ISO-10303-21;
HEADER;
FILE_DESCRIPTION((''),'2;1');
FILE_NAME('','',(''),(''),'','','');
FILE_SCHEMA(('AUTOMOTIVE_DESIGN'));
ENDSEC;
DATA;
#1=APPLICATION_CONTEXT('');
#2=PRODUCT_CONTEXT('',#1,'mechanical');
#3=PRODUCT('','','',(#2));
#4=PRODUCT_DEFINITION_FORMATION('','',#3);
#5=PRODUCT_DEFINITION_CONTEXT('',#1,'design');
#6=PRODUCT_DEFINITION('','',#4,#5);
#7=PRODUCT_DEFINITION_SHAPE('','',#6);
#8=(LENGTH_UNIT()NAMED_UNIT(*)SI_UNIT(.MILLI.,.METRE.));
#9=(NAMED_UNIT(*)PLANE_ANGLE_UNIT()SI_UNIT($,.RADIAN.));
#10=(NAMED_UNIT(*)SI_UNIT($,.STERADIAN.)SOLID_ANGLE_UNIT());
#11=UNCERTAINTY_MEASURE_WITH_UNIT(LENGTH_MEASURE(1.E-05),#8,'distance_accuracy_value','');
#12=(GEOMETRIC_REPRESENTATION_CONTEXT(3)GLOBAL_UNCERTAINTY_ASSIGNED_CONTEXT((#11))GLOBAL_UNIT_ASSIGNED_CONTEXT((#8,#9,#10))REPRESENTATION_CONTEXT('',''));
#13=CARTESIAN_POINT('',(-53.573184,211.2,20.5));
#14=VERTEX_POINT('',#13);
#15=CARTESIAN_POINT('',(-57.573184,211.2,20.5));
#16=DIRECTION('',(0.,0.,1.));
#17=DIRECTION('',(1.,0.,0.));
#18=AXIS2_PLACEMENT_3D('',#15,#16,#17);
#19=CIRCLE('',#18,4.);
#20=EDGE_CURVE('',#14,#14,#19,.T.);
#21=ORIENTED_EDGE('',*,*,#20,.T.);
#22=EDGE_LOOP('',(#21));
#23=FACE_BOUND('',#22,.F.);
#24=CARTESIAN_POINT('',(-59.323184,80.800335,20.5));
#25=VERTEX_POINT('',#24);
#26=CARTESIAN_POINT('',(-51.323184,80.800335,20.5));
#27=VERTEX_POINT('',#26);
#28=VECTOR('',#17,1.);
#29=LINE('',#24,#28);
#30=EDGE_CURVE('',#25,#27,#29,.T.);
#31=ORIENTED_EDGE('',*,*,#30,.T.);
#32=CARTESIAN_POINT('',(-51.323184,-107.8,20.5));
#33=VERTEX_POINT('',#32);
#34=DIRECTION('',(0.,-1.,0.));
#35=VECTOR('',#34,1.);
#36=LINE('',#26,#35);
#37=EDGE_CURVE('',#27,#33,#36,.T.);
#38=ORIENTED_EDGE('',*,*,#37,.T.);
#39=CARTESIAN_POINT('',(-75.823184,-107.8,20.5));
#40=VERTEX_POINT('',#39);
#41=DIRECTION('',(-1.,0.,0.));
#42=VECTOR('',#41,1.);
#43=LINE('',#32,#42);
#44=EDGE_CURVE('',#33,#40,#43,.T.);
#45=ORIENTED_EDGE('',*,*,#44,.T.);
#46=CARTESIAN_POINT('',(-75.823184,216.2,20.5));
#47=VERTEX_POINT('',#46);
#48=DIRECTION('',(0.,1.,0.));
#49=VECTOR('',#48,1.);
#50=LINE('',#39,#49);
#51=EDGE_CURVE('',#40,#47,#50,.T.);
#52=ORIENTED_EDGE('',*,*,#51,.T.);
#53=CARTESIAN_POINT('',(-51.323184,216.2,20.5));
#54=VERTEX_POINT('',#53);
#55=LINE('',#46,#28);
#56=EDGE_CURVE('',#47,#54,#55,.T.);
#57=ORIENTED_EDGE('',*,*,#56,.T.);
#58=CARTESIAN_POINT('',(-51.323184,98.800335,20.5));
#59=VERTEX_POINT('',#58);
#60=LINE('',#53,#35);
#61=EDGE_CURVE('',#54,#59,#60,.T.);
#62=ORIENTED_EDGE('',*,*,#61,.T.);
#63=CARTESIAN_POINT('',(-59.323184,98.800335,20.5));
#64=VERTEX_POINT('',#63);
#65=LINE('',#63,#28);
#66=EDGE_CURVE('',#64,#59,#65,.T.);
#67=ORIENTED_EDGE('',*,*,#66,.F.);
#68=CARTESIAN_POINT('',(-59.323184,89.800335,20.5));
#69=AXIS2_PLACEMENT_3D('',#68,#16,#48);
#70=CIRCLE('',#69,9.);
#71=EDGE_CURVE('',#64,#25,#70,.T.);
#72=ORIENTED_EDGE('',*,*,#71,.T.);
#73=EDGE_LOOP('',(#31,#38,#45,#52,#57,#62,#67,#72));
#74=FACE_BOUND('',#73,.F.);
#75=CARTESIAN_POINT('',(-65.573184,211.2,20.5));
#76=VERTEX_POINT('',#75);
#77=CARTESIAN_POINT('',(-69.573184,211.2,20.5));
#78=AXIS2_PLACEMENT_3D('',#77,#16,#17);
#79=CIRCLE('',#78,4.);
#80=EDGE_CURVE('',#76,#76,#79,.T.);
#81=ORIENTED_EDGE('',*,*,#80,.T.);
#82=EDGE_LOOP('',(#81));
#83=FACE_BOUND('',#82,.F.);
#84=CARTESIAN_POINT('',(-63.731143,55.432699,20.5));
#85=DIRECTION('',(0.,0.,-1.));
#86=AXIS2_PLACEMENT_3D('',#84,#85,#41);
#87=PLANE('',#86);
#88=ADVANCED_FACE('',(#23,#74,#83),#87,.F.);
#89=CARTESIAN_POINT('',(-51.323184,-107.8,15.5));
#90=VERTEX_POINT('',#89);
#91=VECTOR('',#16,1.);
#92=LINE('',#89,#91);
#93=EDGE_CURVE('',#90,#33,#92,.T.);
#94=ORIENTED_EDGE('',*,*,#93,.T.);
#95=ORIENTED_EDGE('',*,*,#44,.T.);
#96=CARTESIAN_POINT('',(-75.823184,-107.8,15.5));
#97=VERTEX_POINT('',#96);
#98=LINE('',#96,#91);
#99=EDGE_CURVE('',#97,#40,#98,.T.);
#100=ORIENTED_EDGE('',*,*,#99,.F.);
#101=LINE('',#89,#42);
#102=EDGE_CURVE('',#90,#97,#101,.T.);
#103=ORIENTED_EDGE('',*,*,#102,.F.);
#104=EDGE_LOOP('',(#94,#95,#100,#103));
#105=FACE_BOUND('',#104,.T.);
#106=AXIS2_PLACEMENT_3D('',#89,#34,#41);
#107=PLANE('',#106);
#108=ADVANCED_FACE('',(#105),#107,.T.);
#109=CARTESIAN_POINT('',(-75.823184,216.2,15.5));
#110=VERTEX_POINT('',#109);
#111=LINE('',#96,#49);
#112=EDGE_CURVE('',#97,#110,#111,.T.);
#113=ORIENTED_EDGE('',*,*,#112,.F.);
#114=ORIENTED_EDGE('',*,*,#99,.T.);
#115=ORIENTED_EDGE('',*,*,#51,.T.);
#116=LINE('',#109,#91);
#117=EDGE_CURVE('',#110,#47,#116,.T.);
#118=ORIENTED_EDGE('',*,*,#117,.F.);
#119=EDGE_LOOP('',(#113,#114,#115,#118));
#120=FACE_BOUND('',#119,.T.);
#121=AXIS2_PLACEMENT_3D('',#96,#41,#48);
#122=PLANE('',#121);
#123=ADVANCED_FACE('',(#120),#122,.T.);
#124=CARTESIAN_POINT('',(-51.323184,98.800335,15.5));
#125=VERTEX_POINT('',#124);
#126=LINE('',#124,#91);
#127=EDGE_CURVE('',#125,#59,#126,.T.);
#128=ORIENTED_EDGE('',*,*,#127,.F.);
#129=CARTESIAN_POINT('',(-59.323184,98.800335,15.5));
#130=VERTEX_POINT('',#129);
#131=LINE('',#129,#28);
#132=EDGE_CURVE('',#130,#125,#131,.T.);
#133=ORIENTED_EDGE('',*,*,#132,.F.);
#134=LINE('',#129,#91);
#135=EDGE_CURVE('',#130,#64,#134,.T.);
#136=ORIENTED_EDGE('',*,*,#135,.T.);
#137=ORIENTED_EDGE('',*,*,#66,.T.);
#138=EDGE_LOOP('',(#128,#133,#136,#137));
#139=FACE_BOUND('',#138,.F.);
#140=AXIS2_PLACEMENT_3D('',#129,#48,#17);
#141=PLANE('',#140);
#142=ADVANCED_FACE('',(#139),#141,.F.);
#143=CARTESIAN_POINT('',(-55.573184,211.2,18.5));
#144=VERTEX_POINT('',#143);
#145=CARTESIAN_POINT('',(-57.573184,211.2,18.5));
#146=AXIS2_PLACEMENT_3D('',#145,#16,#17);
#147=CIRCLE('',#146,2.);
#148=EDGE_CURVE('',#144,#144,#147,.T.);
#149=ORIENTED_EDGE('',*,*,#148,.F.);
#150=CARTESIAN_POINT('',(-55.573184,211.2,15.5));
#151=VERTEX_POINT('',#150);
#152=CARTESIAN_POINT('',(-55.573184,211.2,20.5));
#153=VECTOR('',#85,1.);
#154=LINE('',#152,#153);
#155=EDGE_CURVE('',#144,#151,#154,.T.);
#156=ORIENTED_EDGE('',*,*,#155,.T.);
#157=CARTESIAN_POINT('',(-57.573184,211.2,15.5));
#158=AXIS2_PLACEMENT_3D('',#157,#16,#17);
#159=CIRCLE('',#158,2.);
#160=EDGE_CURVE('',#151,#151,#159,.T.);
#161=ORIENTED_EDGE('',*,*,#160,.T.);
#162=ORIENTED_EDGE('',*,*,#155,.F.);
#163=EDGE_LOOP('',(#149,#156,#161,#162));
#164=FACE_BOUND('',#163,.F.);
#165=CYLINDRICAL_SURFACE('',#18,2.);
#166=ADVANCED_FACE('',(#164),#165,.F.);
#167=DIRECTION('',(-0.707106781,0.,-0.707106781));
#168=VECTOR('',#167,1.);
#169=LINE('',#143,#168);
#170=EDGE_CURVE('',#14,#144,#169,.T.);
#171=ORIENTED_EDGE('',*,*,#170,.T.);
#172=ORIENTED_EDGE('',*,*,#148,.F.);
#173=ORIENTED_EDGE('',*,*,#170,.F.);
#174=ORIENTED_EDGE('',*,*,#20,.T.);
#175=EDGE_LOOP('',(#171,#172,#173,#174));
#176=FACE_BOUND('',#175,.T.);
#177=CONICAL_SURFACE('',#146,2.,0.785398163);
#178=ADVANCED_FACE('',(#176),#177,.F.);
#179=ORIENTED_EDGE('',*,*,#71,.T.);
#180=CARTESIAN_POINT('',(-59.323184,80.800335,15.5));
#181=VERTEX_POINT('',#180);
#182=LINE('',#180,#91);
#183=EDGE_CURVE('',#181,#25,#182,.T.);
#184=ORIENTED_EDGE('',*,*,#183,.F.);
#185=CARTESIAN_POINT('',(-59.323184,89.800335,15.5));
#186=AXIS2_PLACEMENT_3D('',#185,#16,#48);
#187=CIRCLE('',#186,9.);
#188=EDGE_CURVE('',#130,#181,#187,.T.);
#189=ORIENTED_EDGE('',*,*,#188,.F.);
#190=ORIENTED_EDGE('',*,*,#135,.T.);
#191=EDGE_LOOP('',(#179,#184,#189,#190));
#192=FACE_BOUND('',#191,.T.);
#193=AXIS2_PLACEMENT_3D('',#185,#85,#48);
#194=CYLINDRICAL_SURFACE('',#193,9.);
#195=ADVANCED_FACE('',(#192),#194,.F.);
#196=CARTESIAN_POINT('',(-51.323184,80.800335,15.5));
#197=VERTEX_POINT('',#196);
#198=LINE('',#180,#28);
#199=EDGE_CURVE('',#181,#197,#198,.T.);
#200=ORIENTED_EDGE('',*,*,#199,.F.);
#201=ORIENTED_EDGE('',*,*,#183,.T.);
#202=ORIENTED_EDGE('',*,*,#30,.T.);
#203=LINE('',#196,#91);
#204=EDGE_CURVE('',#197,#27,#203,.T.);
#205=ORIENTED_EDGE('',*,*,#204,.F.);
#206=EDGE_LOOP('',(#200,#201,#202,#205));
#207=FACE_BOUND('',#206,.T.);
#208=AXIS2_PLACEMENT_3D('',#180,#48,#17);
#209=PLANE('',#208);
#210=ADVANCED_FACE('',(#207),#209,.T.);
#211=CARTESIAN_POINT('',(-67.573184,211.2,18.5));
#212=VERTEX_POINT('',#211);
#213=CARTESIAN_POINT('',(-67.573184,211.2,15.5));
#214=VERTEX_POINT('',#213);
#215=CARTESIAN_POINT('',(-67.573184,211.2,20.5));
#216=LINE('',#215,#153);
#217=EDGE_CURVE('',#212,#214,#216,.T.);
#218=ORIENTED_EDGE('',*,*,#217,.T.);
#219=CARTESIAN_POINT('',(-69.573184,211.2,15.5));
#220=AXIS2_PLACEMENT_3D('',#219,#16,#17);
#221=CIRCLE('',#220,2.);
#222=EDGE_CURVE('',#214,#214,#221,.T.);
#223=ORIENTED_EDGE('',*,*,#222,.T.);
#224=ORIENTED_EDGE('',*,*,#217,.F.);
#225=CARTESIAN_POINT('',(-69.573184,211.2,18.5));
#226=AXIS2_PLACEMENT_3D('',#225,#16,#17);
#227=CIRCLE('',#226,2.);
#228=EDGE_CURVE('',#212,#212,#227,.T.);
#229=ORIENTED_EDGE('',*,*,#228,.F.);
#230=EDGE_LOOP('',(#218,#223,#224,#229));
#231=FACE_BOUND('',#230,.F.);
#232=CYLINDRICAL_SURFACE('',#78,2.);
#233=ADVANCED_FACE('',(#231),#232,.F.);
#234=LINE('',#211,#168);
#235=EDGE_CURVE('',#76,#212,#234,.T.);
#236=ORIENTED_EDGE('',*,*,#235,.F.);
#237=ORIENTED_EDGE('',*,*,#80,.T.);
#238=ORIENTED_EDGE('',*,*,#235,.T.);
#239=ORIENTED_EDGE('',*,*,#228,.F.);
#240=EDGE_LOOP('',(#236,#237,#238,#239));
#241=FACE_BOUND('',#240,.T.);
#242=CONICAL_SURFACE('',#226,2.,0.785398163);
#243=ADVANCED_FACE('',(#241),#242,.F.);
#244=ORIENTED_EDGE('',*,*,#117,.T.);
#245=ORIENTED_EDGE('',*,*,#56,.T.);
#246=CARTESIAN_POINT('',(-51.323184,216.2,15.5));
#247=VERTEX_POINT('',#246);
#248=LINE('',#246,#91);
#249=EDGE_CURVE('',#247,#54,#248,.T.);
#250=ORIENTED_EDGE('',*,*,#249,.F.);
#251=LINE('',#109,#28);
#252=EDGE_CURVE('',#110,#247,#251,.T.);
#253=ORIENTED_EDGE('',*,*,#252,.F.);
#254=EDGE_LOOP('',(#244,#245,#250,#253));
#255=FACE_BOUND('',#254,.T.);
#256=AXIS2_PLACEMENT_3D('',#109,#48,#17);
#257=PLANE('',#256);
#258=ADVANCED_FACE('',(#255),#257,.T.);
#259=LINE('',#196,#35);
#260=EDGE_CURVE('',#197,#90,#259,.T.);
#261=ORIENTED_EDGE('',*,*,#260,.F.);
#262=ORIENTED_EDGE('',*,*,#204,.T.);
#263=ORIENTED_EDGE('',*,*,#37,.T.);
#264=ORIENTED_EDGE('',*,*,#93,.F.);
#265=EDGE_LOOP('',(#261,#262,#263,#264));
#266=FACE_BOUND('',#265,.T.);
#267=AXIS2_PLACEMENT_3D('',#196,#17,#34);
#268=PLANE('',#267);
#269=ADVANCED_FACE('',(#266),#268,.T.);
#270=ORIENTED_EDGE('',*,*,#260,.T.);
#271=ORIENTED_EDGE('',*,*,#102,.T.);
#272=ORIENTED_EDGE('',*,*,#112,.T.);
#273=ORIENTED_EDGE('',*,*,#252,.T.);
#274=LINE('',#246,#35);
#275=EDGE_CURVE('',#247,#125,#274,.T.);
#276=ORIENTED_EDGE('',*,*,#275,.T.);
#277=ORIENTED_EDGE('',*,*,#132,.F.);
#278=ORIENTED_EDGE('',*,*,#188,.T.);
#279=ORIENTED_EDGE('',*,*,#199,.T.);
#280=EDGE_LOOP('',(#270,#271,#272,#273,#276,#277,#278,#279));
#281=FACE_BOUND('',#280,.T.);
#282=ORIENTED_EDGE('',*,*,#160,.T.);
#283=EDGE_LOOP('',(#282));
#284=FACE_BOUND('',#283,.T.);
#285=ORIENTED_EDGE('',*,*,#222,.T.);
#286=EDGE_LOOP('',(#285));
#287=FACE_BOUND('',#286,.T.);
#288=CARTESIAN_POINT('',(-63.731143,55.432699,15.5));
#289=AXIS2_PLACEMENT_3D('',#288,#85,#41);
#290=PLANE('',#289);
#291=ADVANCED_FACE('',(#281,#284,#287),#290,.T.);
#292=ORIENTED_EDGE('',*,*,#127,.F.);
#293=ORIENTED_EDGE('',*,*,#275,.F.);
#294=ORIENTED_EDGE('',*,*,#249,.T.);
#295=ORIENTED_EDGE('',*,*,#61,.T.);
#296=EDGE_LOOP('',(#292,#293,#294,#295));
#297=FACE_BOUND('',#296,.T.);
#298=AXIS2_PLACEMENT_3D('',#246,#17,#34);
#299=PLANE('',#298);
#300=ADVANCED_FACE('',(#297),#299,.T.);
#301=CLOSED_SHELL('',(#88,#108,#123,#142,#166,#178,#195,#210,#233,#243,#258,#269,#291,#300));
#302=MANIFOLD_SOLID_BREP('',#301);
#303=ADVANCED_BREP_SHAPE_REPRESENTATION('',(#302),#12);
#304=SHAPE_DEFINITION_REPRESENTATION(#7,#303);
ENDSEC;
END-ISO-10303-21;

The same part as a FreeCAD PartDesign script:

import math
import FreeCAD as App
import Part
import Sketcher
from FreeCAD import Vector
Q = App.Units.Quantity


def edges_at(feature, points):
    """Names of the edges that pass closest to the given points."""
    edges = feature.Shape.Edges
    near = lambda p: min(range(len(edges)), key=lambda i: edges[i].distToShape(Part.Vertex(*p))[0])
    return sorted({f"Edge{near(p) + 1}" for p in points})

doc = App.newDocument("Part")
body = doc.addObject("PartDesign::Body", "Body")

# Sketch on XY plane
sketch1 = doc.addObject("Sketcher::SketchObject", "Sketch")
body.addObject(sketch1)
sketch1.AttachmentSupport = (doc.XY_Plane, [""])
sketch1.MapMode = "FlatFace"
sketch1.addGeometry(Part.LineSegment(Vector(99, -108, 0), Vector(99, 81, 0)), False)
sketch1.addGeometry(Part.LineSegment(Vector(99, 81, 0), Vector(91, 81, 0)), False)
sketch1.addGeometry(Part.ArcOfCircle(Part.Circle(Vector(91, 90, 0), Vector(0, 0, 1), 9), math.radians(90), math.radians(270)), False)
sketch1.addGeometry(Part.LineSegment(Vector(91, 99, 0), Vector(99, 99, 0)), False)
sketch1.addGeometry(Part.LineSegment(Vector(99, 99, 0), Vector(99, 216, 0)), False)
sketch1.addGeometry(Part.LineSegment(Vector(99, 216, 0), Vector(74, 216, 0)), False)
sketch1.addGeometry(Part.LineSegment(Vector(74, 216, 0), Vector(74, -108, 0)), False)
sketch1.addGeometry(Part.LineSegment(Vector(74, -108, 0), Vector(99, -108, 0)), False)
sketch1.addConstraint(Sketcher.Constraint("Coincident", 0, 2, 1, 1))
sketch1.addConstraint(Sketcher.Constraint("Tangent", 1, 2, 2, 2))
sketch1.addConstraint(Sketcher.Constraint("Tangent", 2, 1, 3, 1))
sketch1.addConstraint(Sketcher.Constraint("Coincident", 3, 2, 4, 1))
sketch1.addConstraint(Sketcher.Constraint("Coincident", 4, 2, 5, 1))
sketch1.addConstraint(Sketcher.Constraint("Coincident", 5, 2, 6, 1))
sketch1.addConstraint(Sketcher.Constraint("Coincident", 6, 2, 7, 1))
sketch1.addConstraint(Sketcher.Constraint("Coincident", 7, 2, 0, 1))
sketch1.addConstraint(Sketcher.Constraint("Vertical", 0))
sketch1.addConstraint(Sketcher.Constraint("Horizontal", 1))
sketch1.addConstraint(Sketcher.Constraint("Horizontal", 3))
sketch1.addConstraint(Sketcher.Constraint("Vertical", 4))
sketch1.addConstraint(Sketcher.Constraint("Horizontal", 5))
sketch1.addConstraint(Sketcher.Constraint("Vertical", 6))
sketch1.addConstraint(Sketcher.Constraint("Horizontal", 7))
sketch1.addConstraint(Sketcher.Constraint("Vertical", 0, 2, 3, 2))
sketch1.addConstraint(Sketcher.Constraint("Radius", 2, Q("9 mm")))
sketch1.addConstraint(Sketcher.Constraint("DistanceX", 1, 2, 1, 1, Q("8 mm")))
sketch1.addConstraint(Sketcher.Constraint("DistanceY", 6, 2, 6, 1, Q("324 mm")))
sketch1.addConstraint(Sketcher.Constraint("DistanceX", 5, 2, 5, 1, Q("24.5 mm")))
sketch1.addConstraint(Sketcher.Constraint("DistanceY", -1, 1, 4, 2, Q("216.2 mm")))
sketch1.addConstraint(Sketcher.Constraint("DistanceY", 0, 1, 0, 2, Q("188.600335 mm")))
sketch1.addConstraint(Sketcher.Constraint("DistanceX", -1, 1, 2, 3, Q("90.676816 mm")))
pad1 = doc.addObject("PartDesign::Pad", "Pad")
body.addObject(pad1)
pad1.Profile = sketch1
pad1.Length = 5

# Sketch on XY plane
sketch2 = doc.addObject("Sketcher::SketchObject", "Sketch001")
body.addObject(sketch2)
sketch2.AttachmentSupport = (doc.XY_Plane, [""])
sketch2.MapMode = "FlatFace"
sketch2.AttachmentOffset = App.Placement(Vector(0, 0, 5), App.Rotation())
sketch2.addGeometry(Part.Circle(Vector(80.4, 211.2, 0), Vector(0, 0, 1), 2), False)
sketch2.addGeometry(Part.Circle(Vector(92.4, 211.2, 0), Vector(0, 0, 1), 2), False)
sketch2.addConstraint(Sketcher.Constraint("Equal", 0, 1))
sketch2.addConstraint(Sketcher.Constraint("Horizontal", 0, 3, 1, 3))
sketch2.addConstraint(Sketcher.Constraint("Diameter", 0, Q("4 mm")))
sketch2.addConstraint(Sketcher.Constraint("DistanceX", 0, 3, 1, 3, Q("12 mm")))
sketch2.addConstraint(Sketcher.Constraint("DistanceY", -1, 1, 0, 3, Q("211.2 mm")))
sketch2.addConstraint(Sketcher.Constraint("DistanceX", -1, 1, 0, 3, Q("80.426816 mm")))
pocket1 = doc.addObject("PartDesign::Pocket", "Pocket")
body.addObject(pocket1)
pocket1.Profile = sketch2
pocket1.Type = "ThroughAll"
doc.recompute()

chamfer = doc.addObject("PartDesign::Chamfer", "Chamfer")
body.addObject(chamfer)
chamfer.Base = (pocket1, edges_at(pocket1, [(78.427, 211.2, 5), (90.427, 211.2, 5)]))
chamfer.Size = 2
body2 = doc.addObject("PartDesign::Body", "Body001")
doc.recompute()

body.Placement = App.Placement(Vector(-150, 0, 15.5), App.Rotation(Vector(0, 0, 1), 0))
boolean = doc.addObject("PartDesign::Boolean", "Boolean")
body2.addObject(boolean)
boolean.Type = "Fuse"
boolean.addObjects([body])

doc.recompute()
